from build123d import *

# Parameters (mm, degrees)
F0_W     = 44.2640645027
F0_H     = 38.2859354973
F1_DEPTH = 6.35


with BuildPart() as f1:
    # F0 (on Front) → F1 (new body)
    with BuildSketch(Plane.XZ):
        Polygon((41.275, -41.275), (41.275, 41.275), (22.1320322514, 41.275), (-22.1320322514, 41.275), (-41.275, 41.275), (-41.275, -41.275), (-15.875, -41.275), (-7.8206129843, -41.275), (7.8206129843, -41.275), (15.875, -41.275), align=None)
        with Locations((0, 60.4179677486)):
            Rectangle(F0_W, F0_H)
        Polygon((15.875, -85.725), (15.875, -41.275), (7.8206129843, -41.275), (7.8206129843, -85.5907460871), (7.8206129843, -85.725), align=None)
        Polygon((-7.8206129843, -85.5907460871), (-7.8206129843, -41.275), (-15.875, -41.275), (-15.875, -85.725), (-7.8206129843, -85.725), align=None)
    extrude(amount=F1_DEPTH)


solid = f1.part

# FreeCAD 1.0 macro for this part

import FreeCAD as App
import Part
import Sketcher
from FreeCAD import Vector
Q = App.Units.Quantity


def add_polygon(sketch, points):
    """Adds a closed chain of lines whose ends are joined by coincident constraints."""
    first, n = sketch.GeometryCount, len(points)
    for a, b in zip(points, points[1:] + points[:1]):
        sketch.addGeometry(Part.LineSegment(App.Vector(*a, 0), App.Vector(*b, 0)), False)
    for i in range(n):
        sketch.addConstraint(Sketcher.Constraint("Coincident", first + i, 2, first + (i + 1) % n, 1))

doc = App.newDocument("Part")
body = doc.addObject("PartDesign::Body", "Body")

sketch1 = body.newObject("Sketcher::SketchObject", "Sketch")
sketch1.AttachmentSupport = (doc.getObject("XZ_Plane"), [""])
sketch1.MapMode = "FlatFace"
add_polygon(sketch1, [(41.275, -41.275), (41.275, 41.275), (22.132032, 41.275), (22.132032, 79.560935), (-22.132032, 79.560935), (-22.132032, 41.275), (-41.275, 41.275), (-41.275, -41.275), (-15.875, -41.275), (-15.875, -85.725), (-7.820613, -85.725), (-7.820613, -41.275), (7.820613, -41.275), (7.820613, -85.725), (15.875, -85.725), (15.875, -41.275)])
sketch1.addConstraint([
    Sketcher.Constraint("Vertical", 0),
    Sketcher.Constraint("Horizontal", 1),
    Sketcher.Constraint("Vertical", 2),
    Sketcher.Constraint("Horizontal", 3),
    Sketcher.Constraint("Vertical", 4),
    Sketcher.Constraint("Horizontal", 5),
    Sketcher.Constraint("Vertical", 6),
    Sketcher.Constraint("Horizontal", 7),
    Sketcher.Constraint("Vertical", 8),
    Sketcher.Constraint("Horizontal", 9),
    Sketcher.Constraint("Vertical", 10),
    Sketcher.Constraint("Horizontal", 11),
    Sketcher.Constraint("Vertical", 12),
    Sketcher.Constraint("Horizontal", 13),
    Sketcher.Constraint("Vertical", 14),
    Sketcher.Constraint("Horizontal", 15),
    Sketcher.Constraint("Symmetric", 0, 2, 6, 2, -1, 1),
    Sketcher.Constraint("Symmetric", 1, 2, 4, 2, -2),
    Sketcher.Constraint("Symmetric", 9, 2, 12, 2, -2),
    Sketcher.Constraint("Symmetric", 7, 2, 14, 2, -2),
    Sketcher.Constraint("Horizontal", 7, 2, 10, 2),
    Sketcher.Constraint("DistanceX", 7, 1, 7, 2, Q("1 in")),
    Sketcher.Constraint("DistanceY", 8, 2, 4, 2, Q("5 in")),
    Sketcher.Constraint("DistanceY", 0, 1, 0, 2, Q("3.25 in")),
    Sketcher.Constraint("DistanceX", 5, 2, 0, 2, Q("3.25 in")),
    Sketcher.Constraint("DistanceX", 1, 2, 1, 1, Q("19.142968 mm")),
    Sketcher.Constraint("DistanceX", 9, 1, 9, 2, Q("8.054387 mm")),
    Sketcher.Constraint("DistanceY", 2, 1, 2, 2, Q("38.285935 mm")),
])
pad1 = body.newObject("PartDesign::Pad", "Pad")
pad1.Profile = sketch1
pad1.Length = Q("0.25 in")

doc.recompute()
